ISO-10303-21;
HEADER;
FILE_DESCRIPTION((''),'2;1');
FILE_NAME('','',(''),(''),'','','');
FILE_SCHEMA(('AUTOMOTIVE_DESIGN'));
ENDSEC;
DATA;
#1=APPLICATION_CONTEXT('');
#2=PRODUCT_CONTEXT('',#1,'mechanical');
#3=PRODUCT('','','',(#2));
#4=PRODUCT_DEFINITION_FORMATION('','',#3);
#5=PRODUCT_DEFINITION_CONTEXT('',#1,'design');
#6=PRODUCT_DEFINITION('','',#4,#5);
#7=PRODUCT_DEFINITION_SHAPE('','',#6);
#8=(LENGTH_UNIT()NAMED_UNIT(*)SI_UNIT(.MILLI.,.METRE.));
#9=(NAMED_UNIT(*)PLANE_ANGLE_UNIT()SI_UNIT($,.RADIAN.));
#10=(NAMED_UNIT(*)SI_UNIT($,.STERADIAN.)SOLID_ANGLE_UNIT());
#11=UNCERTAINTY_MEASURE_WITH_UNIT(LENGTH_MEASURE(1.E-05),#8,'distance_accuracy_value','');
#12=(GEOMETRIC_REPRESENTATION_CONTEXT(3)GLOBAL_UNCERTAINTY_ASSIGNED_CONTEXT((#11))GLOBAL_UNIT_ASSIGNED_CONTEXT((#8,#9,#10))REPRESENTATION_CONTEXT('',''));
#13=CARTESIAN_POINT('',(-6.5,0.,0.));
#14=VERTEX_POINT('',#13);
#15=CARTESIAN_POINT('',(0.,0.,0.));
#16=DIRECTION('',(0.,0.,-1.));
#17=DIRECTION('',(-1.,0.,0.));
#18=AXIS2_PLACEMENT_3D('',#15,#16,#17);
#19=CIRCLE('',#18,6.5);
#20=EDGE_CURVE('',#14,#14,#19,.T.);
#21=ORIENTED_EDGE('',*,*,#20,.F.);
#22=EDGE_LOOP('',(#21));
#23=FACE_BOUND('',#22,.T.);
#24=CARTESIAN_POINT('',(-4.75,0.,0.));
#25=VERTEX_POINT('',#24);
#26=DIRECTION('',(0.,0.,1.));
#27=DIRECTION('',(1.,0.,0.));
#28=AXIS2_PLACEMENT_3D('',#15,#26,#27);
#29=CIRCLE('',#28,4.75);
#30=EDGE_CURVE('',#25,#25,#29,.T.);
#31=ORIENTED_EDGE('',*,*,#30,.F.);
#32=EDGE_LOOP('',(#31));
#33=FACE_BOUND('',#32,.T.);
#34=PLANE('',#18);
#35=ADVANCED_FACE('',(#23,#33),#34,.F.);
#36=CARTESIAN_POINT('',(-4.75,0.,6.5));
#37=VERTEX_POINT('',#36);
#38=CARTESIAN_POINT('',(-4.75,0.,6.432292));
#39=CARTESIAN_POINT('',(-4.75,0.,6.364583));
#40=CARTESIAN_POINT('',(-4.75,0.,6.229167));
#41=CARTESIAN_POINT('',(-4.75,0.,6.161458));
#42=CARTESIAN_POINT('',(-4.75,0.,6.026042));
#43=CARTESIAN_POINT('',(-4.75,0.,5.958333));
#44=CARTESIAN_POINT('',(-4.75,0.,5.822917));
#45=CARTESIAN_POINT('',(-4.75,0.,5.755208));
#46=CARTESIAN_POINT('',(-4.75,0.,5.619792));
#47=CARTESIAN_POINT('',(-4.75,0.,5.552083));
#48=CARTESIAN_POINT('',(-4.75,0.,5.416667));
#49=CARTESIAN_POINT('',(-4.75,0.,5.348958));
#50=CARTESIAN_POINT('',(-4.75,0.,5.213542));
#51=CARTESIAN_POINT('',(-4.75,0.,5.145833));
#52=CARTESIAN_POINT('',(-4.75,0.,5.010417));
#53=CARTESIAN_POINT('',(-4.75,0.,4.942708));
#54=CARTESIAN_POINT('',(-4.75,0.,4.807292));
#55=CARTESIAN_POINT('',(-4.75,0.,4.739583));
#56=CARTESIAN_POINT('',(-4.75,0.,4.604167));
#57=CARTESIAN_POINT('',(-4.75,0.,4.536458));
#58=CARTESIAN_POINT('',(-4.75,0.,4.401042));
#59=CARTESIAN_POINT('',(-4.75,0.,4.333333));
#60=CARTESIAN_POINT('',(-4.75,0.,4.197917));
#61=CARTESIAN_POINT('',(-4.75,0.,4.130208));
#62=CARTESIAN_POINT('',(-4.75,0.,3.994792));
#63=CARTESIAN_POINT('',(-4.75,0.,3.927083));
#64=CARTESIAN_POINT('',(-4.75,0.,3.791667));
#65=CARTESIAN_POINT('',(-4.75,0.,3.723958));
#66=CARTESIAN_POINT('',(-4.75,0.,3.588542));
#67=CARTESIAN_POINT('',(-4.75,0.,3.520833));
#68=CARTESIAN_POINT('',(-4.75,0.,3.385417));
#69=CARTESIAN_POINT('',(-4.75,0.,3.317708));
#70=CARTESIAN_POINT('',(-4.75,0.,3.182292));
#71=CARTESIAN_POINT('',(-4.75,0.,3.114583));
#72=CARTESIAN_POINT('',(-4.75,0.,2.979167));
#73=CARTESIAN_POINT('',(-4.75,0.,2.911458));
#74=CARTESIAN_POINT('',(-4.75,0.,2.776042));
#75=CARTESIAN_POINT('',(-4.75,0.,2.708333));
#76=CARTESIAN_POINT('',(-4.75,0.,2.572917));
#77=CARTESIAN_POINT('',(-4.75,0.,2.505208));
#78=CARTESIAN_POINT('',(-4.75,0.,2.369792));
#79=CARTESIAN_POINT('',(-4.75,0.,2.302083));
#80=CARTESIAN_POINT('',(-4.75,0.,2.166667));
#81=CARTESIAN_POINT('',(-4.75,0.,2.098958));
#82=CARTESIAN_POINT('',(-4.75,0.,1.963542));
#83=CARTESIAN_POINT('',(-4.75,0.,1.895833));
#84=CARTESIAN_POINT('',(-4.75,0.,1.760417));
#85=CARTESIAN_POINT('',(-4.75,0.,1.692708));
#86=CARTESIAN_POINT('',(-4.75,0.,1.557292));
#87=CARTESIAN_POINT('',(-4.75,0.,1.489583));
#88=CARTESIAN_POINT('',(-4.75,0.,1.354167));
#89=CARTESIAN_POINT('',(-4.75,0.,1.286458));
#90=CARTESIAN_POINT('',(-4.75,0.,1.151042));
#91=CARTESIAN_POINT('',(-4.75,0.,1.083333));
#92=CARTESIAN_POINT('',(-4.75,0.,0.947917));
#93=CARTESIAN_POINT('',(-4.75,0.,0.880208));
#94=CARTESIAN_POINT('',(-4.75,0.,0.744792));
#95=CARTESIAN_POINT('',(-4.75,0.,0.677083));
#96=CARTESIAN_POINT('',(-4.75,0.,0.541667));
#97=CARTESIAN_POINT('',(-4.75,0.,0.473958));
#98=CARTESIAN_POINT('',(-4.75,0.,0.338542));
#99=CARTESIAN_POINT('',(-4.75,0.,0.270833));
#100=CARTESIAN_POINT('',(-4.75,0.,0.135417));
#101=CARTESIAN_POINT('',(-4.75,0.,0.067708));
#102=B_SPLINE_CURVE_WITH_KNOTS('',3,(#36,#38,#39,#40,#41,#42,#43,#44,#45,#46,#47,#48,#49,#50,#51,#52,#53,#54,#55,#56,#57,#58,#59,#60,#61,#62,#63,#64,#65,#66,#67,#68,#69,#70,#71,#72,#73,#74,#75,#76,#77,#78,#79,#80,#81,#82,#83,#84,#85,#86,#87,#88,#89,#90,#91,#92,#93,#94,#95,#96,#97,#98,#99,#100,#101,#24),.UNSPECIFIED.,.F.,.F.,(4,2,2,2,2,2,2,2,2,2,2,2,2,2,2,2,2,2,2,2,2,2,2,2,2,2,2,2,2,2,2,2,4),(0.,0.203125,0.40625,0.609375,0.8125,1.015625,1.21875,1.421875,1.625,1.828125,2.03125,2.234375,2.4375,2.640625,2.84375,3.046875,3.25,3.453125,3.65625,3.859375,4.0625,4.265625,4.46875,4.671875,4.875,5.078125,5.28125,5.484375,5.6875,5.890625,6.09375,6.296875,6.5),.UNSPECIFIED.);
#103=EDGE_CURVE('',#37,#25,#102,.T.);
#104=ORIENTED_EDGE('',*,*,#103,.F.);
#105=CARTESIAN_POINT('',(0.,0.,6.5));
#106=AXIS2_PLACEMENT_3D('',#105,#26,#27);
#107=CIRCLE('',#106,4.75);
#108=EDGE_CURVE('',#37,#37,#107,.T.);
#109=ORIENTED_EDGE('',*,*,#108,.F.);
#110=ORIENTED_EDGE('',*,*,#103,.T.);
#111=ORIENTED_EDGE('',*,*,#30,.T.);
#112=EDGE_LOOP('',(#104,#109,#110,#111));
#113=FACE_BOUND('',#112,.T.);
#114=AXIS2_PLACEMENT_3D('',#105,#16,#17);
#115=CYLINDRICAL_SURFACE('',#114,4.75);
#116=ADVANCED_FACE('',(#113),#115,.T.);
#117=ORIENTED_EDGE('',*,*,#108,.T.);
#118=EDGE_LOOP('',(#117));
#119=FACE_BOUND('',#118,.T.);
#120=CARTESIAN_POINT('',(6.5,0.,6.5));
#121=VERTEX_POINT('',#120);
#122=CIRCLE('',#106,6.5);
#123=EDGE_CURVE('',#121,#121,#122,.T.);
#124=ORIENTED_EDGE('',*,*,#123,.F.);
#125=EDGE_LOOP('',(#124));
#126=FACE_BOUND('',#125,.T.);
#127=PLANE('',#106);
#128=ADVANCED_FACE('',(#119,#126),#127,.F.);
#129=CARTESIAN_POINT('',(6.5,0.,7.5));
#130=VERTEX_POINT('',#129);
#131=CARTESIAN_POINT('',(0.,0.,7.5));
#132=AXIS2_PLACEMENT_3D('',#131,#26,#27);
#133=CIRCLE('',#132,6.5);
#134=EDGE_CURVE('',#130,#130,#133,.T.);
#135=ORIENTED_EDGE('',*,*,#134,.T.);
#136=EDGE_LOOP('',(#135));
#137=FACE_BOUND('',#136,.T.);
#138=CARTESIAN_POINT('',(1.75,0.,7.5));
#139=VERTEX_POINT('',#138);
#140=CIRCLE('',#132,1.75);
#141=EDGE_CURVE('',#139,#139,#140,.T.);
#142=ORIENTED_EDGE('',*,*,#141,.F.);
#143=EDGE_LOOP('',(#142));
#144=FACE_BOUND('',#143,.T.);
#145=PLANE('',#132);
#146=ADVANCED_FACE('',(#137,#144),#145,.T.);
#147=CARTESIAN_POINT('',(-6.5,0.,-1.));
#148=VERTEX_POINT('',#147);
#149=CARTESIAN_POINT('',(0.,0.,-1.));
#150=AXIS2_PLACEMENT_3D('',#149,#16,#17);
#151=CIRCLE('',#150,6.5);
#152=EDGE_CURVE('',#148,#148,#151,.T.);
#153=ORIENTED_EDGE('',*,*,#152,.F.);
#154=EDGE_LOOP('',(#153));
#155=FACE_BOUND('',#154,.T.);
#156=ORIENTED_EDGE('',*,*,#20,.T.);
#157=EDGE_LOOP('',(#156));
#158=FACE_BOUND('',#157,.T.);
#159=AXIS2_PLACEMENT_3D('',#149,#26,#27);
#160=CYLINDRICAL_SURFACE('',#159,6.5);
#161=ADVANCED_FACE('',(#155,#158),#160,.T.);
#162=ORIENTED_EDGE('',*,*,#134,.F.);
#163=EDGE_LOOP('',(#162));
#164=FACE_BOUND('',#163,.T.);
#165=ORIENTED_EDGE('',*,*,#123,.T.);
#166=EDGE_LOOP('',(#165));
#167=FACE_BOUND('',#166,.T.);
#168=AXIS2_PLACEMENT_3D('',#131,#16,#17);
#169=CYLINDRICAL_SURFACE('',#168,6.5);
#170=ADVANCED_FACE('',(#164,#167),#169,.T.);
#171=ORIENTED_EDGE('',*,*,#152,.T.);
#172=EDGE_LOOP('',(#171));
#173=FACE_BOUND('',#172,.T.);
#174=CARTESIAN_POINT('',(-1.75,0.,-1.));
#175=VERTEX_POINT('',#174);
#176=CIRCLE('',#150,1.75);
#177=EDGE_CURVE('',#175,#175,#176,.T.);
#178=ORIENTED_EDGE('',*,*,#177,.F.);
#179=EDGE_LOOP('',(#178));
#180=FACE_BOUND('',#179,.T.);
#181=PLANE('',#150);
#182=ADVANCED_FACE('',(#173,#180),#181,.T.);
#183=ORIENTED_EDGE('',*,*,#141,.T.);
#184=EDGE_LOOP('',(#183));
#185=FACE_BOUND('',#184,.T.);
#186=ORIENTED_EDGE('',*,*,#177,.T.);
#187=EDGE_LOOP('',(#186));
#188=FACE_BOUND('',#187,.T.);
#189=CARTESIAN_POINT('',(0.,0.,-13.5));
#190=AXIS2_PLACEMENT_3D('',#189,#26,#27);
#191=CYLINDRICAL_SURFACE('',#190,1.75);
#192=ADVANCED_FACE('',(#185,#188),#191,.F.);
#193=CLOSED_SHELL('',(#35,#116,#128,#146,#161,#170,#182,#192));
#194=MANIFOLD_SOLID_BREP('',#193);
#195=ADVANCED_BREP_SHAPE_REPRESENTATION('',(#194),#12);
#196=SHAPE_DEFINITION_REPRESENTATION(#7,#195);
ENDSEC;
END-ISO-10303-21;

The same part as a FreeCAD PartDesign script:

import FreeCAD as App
import Part
import Sketcher

doc = App.newDocument("Part")
body = doc.addObject("PartDesign::Body", "Body")

sketch1 = doc.addObject("Sketcher::SketchObject", "Sketch")
body.addObject(sketch1)
sketch1.AttachmentSupport = (doc.XY_Plane, [""])
sketch1.MapMode = "FlatFace"
sketch1.addGeometry(Part.Circle(App.Vector(0, 0, 0), App.Vector(0, 0, 1), 4.8), False)
sketch1.addConstraint([
    Sketcher.Constraint("Coincident", 0, 3, -1, 1),
    Sketcher.Constraint("Diameter", 0, 9.5),
])
pad1 = doc.addObject("PartDesign::Pad", "Pad")
body.addObject(pad1)
pad1.Profile = sketch1
pad1.Length = 6.5

sketch2 = doc.addObject("Sketcher::SketchObject", "Sketch001")
body.addObject(sketch2)
sketch2.AttachmentSupport = (doc.XY_Plane, [""])
sketch2.MapMode = "FlatFace"
sketch2.AttachmentOffset = App.Placement(App.Vector(0, 0, 6.5), App.Rotation())
sketch2.addGeometry(Part.Circle(App.Vector(0, 0, 0), App.Vector(0, 0, 1), 6), False)
sketch2.addConstraint([
    Sketcher.Constraint("Coincident", 0, 3, -1, 1),
    Sketcher.Constraint("Diameter", 0, 13.0),
])
pad2 = doc.addObject("PartDesign::Pad", "Pad001")
body.addObject(pad2)
pad2.Profile = sketch2
pad2.Length = 1

sketch3 = doc.addObject("Sketcher::SketchObject", "Sketch002")
body.addObject(sketch3)
sketch3.AttachmentSupport = (doc.XY_Plane, [""])
sketch3.MapMode = "FlatFace"
sketch3.AttachmentOffset = App.Placement(App.Vector(0, 0, -1), App.Rotation())
sketch3.addGeometry(Part.Circle(App.Vector(0, 0, 0), App.Vector(0, 0, 1), 6), False)
sketch3.addConstraint([
    Sketcher.Constraint("Coincident", 0, 3, -1, 1),
    Sketcher.Constraint("Diameter", 0, 13.0),
])
pad3 = doc.addObject("PartDesign::Pad", "Pad002")
body.addObject(pad3)
pad3.Profile = sketch3
pad3.Length = 1

sketch4 = doc.addObject("Sketcher::SketchObject", "Sketch003")
body.addObject(sketch4)
sketch4.AttachmentSupport = (doc.XY_Plane, [""])
sketch4.MapMode = "FlatFace"
sketch4.AttachmentOffset = App.Placement(App.Vector(0, 0, 7.5), App.Rotation())
sketch4.addGeometry(Part.Circle(App.Vector(0, 0, 0), App.Vector(0, 0, 1), 1.8), False)
sketch4.addConstraint([
    Sketcher.Constraint("Coincident", 0, 3, -1, 1),
    Sketcher.Constraint("Diameter", 0, 3.5),
])
pocket1 = doc.addObject("PartDesign::Pocket", "Pocket")
body.addObject(pocket1)
pocket1.Profile = sketch4
pocket1.Length = 21

doc.recompute()
